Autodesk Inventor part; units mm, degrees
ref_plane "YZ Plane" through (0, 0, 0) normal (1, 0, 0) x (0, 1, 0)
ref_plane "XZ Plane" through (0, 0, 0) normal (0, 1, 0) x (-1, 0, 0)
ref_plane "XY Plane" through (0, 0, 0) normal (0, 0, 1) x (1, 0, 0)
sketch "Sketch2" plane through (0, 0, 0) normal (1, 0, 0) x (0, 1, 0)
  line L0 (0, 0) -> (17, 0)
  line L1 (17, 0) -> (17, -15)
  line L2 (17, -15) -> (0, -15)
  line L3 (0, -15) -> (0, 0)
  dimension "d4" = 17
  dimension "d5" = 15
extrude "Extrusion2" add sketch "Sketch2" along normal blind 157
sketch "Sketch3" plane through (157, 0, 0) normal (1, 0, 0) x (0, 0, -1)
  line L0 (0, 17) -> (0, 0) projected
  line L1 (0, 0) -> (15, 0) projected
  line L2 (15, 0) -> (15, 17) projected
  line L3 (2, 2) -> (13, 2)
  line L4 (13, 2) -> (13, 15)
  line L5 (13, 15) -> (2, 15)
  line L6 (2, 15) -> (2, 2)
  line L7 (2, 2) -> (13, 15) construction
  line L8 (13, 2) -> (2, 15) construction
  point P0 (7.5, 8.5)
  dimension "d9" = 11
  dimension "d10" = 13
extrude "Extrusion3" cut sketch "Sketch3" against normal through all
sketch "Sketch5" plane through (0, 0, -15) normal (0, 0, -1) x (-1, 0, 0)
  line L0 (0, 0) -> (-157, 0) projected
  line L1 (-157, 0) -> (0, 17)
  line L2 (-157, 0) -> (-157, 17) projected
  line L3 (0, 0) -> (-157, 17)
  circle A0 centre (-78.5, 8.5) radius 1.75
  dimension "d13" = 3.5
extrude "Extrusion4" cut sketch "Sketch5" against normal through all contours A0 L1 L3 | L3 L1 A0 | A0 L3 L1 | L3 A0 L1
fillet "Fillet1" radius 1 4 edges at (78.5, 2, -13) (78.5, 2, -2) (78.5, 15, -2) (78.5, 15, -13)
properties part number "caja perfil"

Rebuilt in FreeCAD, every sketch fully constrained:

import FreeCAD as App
import Part
import Sketcher

V = App.Vector
Q = App.Units.Quantity


def edges_at(feature, points):
    """Names of the edges that pass closest to the given points."""
    edges = feature.Shape.Edges
    near = lambda p: min(range(len(edges)), key=lambda i: edges[i].distToShape(Part.Vertex(*p))[0])
    return sorted({f"Edge{near(p) + 1}" for p in points})


def add_polygon(sketch, points):
    """Adds a closed chain of lines whose ends are joined by coincident constraints."""
    first, n = sketch.GeometryCount, len(points)
    for a, b in zip(points, points[1:] + points[:1]):
        sketch.addGeometry(Part.LineSegment(App.Vector(*a, 0), App.Vector(*b, 0)), False)
    for i in range(n):
        sketch.addConstraint(Sketcher.Constraint("Coincident", first + i, 2, first + (i + 1) % n, 1))

doc = App.newDocument("Part")
body = doc.addObject("PartDesign::Body", "Body")

# Sketch on YZ plane
sketch1 = body.newObject("Sketcher::SketchObject", "Sketch")
sketch1.AttachmentSupport = (doc.getObject("YZ_Plane"), [""])
sketch1.MapMode = "FlatFace"
add_polygon(sketch1, [(17, 0), (0, 0), (0, -15), (17, -15)])  # lines 0-3
sketch1.addConstraint([
    Sketcher.Constraint("Horizontal", 0),
    Sketcher.Constraint("Vertical", 1),
    Sketcher.Constraint("Horizontal", 2),
    Sketcher.Constraint("Vertical", 3),
    Sketcher.Constraint("Coincident", 0, 2, -1, 1),
    Sketcher.Constraint("DistanceX", 0, 2, 0, 1, Q("17 mm")),
    Sketcher.Constraint("DistanceY", 1, 2, 1, 1, Q("15 mm")),
])
pad1 = body.newObject("PartDesign::Pad", "Pad")
pad1.Profile = sketch1
pad1.Length = 157

# Sketch on YZ plane
sketch2 = body.newObject("Sketcher::SketchObject", "Sketch001")
sketch2.AttachmentSupport = (doc.getObject("YZ_Plane"), [""])
sketch2.MapMode = "FlatFace"
sketch2.AttachmentOffset = App.Placement(V(0, 0, 157), App.Rotation())
add_polygon(sketch2, [(15, -2), (2, -2), (2, -13), (15, -13)])  # lines 0-3
sketch2.addConstraint([
    Sketcher.Constraint("Horizontal", 0),
    Sketcher.Constraint("Vertical", 1),
    Sketcher.Constraint("Horizontal", 2),
    Sketcher.Constraint("Vertical", 3),
    Sketcher.Constraint("DistanceX", 0, 2, 0, 1, Q("13 mm")),
    Sketcher.Constraint("DistanceY", 1, 2, 1, 1, Q("11 mm")),
    Sketcher.Constraint("DistanceY", 1, 2, -1, 1, Q("13 mm")),
    Sketcher.Constraint("DistanceX", -1, 1, 0, 2, Q("2 mm")),
])
pocket1 = body.newObject("PartDesign::Pocket", "Pocket")
pocket1.Profile = sketch2
pocket1.Type = "ThroughAll"

# Sketch on XY plane
sketch3 = body.newObject("Sketcher::SketchObject", "Sketch002")
sketch3.AttachmentSupport = (doc.getObject("XY_Plane"), [""])
sketch3.MapMode = "FlatFace"
sketch3.AttachmentOffset = App.Placement(V(0, 0, -15), App.Rotation())
sketch3.addGeometry(Part.Circle(V(78.5, 8.5, 0), V(0, 0, 1), 1.8), False)
sketch3.addConstraint([
    Sketcher.Constraint("Diameter", 0, Q("3.5 mm")),
    Sketcher.Constraint("DistanceX", -1, 1, 0, 3, Q("78.5 mm")),
    Sketcher.Constraint("DistanceY", -1, 1, 0, 3, Q("8.5 mm")),
])
pocket2 = body.newObject("PartDesign::Pocket", "Pocket001")
pocket2.Profile = sketch3
pocket2.Type = "ThroughAll"
pocket2.Reversed = True
doc.recompute()

fillet = body.newObject("PartDesign::Fillet", "Fillet")
fillet.Base = (pocket2, edges_at(pocket2, [
    (78.5, 2, -13),
    (78.5, 2, -2),
    (78.5, 15, -2),
    (78.5, 15, -13),
]))
fillet.Radius = 1

doc.recompute()
